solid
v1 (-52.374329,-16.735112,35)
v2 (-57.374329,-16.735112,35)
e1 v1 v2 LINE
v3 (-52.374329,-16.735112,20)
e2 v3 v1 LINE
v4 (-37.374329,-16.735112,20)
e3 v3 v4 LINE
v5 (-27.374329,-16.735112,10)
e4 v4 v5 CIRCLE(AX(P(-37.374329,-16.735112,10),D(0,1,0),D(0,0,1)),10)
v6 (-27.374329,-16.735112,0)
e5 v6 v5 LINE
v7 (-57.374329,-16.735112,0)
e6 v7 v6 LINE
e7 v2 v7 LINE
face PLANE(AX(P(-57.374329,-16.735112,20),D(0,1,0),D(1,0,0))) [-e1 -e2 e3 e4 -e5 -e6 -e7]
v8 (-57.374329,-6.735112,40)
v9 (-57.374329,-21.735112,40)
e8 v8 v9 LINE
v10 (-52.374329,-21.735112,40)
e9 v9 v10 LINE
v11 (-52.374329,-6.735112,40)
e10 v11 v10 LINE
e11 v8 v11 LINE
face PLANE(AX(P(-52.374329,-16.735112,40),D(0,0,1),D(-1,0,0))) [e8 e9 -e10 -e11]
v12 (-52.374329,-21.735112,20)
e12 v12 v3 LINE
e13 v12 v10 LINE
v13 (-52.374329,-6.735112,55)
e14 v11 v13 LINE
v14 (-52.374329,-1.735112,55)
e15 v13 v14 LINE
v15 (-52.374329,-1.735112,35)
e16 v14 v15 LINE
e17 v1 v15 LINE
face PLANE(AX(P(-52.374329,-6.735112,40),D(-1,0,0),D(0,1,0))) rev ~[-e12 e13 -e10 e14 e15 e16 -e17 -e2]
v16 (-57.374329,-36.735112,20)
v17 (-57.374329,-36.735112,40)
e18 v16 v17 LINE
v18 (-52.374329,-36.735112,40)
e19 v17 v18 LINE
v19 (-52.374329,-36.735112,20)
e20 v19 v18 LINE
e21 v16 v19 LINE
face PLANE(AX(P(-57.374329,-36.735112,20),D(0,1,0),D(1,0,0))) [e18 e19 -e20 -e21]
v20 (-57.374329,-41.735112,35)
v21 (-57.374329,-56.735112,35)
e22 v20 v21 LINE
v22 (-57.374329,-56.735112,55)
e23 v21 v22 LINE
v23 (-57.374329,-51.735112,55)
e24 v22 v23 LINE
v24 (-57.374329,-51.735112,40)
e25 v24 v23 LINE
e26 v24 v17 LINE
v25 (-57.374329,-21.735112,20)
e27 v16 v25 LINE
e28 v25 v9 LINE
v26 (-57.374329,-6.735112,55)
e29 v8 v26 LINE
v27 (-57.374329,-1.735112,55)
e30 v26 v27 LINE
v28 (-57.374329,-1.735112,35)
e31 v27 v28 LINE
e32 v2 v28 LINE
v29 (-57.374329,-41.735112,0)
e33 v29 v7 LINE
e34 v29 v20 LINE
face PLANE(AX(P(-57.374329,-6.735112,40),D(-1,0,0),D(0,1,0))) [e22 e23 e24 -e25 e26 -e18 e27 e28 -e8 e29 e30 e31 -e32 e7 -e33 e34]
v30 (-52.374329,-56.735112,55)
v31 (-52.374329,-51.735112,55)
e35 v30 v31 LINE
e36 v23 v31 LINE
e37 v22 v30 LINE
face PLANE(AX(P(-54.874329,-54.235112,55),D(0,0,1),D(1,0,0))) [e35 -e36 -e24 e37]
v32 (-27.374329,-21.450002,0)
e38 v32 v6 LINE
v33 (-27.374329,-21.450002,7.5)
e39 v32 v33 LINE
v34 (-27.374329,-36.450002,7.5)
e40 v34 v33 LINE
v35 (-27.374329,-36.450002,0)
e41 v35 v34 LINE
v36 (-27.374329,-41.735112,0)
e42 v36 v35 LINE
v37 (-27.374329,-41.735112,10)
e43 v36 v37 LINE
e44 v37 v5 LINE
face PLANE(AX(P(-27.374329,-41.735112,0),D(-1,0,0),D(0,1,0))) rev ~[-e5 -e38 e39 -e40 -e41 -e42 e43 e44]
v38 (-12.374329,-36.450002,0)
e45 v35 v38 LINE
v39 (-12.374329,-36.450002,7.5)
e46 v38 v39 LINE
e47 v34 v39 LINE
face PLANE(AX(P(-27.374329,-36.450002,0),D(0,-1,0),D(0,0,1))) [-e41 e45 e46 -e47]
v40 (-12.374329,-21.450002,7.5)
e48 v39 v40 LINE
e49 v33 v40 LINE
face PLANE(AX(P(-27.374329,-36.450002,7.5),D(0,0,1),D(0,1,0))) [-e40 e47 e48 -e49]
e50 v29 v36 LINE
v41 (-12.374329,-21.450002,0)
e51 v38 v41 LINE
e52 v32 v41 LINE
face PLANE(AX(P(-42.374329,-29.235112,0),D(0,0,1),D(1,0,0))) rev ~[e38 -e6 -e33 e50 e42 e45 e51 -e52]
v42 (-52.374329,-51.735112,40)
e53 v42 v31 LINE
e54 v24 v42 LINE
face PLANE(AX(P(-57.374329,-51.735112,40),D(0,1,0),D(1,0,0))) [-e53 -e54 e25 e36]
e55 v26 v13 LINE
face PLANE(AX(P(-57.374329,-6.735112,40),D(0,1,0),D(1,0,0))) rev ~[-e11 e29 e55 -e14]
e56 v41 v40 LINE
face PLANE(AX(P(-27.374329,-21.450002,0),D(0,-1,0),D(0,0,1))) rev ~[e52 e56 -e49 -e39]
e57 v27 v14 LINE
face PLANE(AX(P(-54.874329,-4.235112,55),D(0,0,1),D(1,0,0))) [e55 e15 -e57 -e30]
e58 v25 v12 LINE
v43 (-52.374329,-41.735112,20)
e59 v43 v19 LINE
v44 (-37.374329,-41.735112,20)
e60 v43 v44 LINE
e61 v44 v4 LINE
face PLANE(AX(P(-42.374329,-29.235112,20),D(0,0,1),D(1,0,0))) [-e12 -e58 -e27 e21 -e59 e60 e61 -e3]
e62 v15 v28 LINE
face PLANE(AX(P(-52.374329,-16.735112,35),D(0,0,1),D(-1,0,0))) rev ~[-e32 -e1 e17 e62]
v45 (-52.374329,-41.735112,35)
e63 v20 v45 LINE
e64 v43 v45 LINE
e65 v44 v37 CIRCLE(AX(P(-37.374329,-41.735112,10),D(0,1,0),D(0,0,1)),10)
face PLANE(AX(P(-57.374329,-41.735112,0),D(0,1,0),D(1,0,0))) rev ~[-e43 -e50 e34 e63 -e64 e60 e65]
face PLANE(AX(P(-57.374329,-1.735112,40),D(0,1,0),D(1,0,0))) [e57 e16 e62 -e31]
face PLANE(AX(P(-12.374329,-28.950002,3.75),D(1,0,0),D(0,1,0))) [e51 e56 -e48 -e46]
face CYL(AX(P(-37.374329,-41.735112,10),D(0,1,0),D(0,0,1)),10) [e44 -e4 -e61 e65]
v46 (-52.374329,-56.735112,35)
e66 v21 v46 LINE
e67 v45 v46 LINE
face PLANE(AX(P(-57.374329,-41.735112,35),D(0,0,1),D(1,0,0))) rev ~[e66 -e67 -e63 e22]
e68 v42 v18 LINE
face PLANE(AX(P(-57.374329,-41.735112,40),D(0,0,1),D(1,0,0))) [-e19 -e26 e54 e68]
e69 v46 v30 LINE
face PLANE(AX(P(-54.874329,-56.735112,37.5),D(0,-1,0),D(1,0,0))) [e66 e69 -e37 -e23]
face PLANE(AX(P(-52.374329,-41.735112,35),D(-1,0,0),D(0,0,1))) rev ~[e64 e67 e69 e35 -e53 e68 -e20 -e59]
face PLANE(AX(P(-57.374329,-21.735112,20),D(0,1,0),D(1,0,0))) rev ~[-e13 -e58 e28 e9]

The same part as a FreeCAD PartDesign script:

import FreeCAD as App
import Part
import Sketcher

V = App.Vector
Q = App.Units.Quantity


def edges_at(feature, points):
    """Names of the edges that pass closest to the given points."""
    edges = feature.Shape.Edges
    near = lambda p: min(range(len(edges)), key=lambda i: edges[i].distToShape(Part.Vertex(*p))[0])
    return sorted({f"Edge{near(p) + 1}" for p in points})


def add_polygon(sketch, points):
    """Adds a closed chain of lines whose ends are joined by coincident constraints."""
    first, n = sketch.GeometryCount, len(points)
    for a, b in zip(points, points[1:] + points[:1]):
        sketch.addGeometry(Part.LineSegment(App.Vector(*a, 0), App.Vector(*b, 0)), False)
    for i in range(n):
        sketch.addConstraint(Sketcher.Constraint("Coincident", first + i, 2, first + (i + 1) % n, 1))

doc = App.newDocument("Part")
body = doc.addObject("PartDesign::Body", "Body")

# Sketch on XY plane
sketch1 = body.newObject("Sketcher::SketchObject", "Sketch")
sketch1.AttachmentSupport = (doc.getObject("XY_Plane"), [""])
sketch1.MapMode = "FlatFace"
add_polygon(sketch1, [(-57, -17), (-57, -42), (-27, -42), (-27, -17)])  # lines 0-3
sketch1.addConstraint([
    Sketcher.Constraint("Vertical", 0),
    Sketcher.Constraint("Horizontal", 1),
    Sketcher.Constraint("Vertical", 2),
    Sketcher.Constraint("Horizontal", 3),
    Sketcher.Constraint("DistanceX", 1, 1, 1, 2, Q("30 mm")),
    Sketcher.Constraint("DistanceY", 0, 2, 0, 1, Q("25 mm")),
    Sketcher.Constraint("DistanceX", 0, 2, -1, 1, Q("57.374329 mm")),
    Sketcher.Constraint("DistanceY", 0, 2, -1, 1, Q("41.735112 mm")),
])
pad1 = body.newObject("PartDesign::Pad", "Pad")
pad1.Profile = sketch1
pad1.Length = 20

# Sketch on YZ plane
sketch2 = body.newObject("Sketcher::SketchObject", "Sketch001")
sketch2.AttachmentSupport = (doc.getObject("YZ_Plane"), [""])
sketch2.MapMode = "FlatFace"
sketch2.AttachmentOffset = App.Placement(V(0, 0, -27.374329), App.Rotation())
add_polygon(sketch2, [(-36, 8), (-36, 0), (-21, 0), (-21, 8)])  # lines 0-3
sketch2.addConstraint([
    Sketcher.Constraint("Vertical", 0),
    Sketcher.Constraint("Horizontal", 1),
    Sketcher.Constraint("Vertical", 2),
    Sketcher.Constraint("Horizontal", 3),
    Sketcher.Constraint("PointOnObject", 0, 2, -1),
    Sketcher.Constraint("DistanceX", 1, 1, 1, 2, Q("15 mm")),
    Sketcher.Constraint("DistanceY", 0, 2, 0, 1, Q("7.5 mm")),
    Sketcher.Constraint("DistanceX", 0, 2, -1, 1, Q("36.450002 mm")),
])
pad2 = body.newObject("PartDesign::Pad", "Pad001")
pad2.Profile = sketch2
pad2.Length = 15

# Sketch on XY plane
sketch3 = body.newObject("Sketcher::SketchObject", "Sketch002")
sketch3.AttachmentSupport = (doc.getObject("XY_Plane"), [""])
sketch3.MapMode = "FlatFace"
sketch3.AttachmentOffset = App.Placement(V(0, 0, 20), App.Rotation())
add_polygon(sketch3, [(-57, -17), (-57, -22), (-52, -22), (-52, -17)])  # lines 0-3
add_polygon(sketch3, [(-57, -37), (-57, -42), (-52, -42), (-52, -37)])  # lines 4-7
sketch3.addConstraint([
    Sketcher.Constraint("Vertical", 0),
    Sketcher.Constraint("Horizontal", 1),
    Sketcher.Constraint("Vertical", 2),
    Sketcher.Constraint("Horizontal", 3),
    Sketcher.Constraint("Vertical", 4),
    Sketcher.Constraint("Horizontal", 5),
    Sketcher.Constraint("Vertical", 6),
    Sketcher.Constraint("Horizontal", 7),
    Sketcher.Constraint("Vertical", 3, 2, 4, 2),
    Sketcher.Constraint("Vertical", 2, 2, 5, 2),
    Sketcher.Constraint("Equal", 7, 0),
    Sketcher.Constraint("Equal", 2, 4),
    Sketcher.Constraint("DistanceX", 1, 1, 1, 2, Q("5 mm")),
    Sketcher.Constraint("DistanceY", 4, 2, 0, 2, Q("20 mm")),
    Sketcher.Constraint("DistanceX", 0, 2, -1, 1, Q("57.374329 mm")),
    Sketcher.Constraint("DistanceY", 0, 2, -1, 1, Q("21.735112 mm")),
])
pad3 = body.newObject("PartDesign::Pad", "Pad002")
pad3.Profile = sketch3
pad3.Length = 20

# Sketch on XZ plane
sketch4 = body.newObject("Sketcher::SketchObject", "Sketch003")
sketch4.AttachmentSupport = (doc.getObject("XZ_Plane"), [""])
sketch4.MapMode = "FlatFace"
sketch4.AttachmentOffset = App.Placement(V(0, 0, 16.735112), App.Rotation())
add_polygon(sketch4, [(-52, 40), (-52, 35), (-57, 35), (-57, 40)])  # lines 0-3
sketch4.addConstraint([
    Sketcher.Constraint("Vertical", 0),
    Sketcher.Constraint("Horizontal", 1),
    Sketcher.Constraint("Vertical", 2),
    Sketcher.Constraint("Horizontal", 3),
    Sketcher.Constraint("Equal", 3, 0),
    Sketcher.Constraint("DistanceX", 1, 2, 1, 1, Q("5 mm")),
    Sketcher.Constraint("DistanceY", -1, 1, 0, 2, Q("35 mm")),
    Sketcher.Constraint("DistanceX", 0, 2, -1, 1, Q("52.374329 mm")),
])
pad4 = body.newObject("PartDesign::Pad", "Pad003")
pad4.Profile = sketch4
pad4.Length = 15
pad4.Reversed = True

# Sketch on XZ plane
sketch5 = body.newObject("Sketcher::SketchObject", "Sketch004")
sketch5.AttachmentSupport = (doc.getObject("XZ_Plane"), [""])
sketch5.MapMode = "FlatFace"
sketch5.AttachmentOffset = App.Placement(V(0, 0, 41.735112), App.Rotation())
add_polygon(sketch5, [(-57, 40), (-57, 35), (-52, 35), (-52, 40)])  # lines 0-3
sketch5.addConstraint([
    Sketcher.Constraint("Vertical", 0),
    Sketcher.Constraint("Horizontal", 1),
    Sketcher.Constraint("Vertical", 2),
    Sketcher.Constraint("Horizontal", 3),
    Sketcher.Constraint("Equal", 3, 0),
    Sketcher.Constraint("DistanceX", 1, 1, 1, 2, Q("5 mm")),
    Sketcher.Constraint("DistanceY", -1, 1, 0, 2, Q("35 mm")),
    Sketcher.Constraint("DistanceX", 0, 2, -1, 1, Q("57.374329 mm")),
])
pad5 = body.newObject("PartDesign::Pad", "Pad004")
pad5.Profile = sketch5
pad5.Length = 15

# Sketch on XY plane
sketch6 = body.newObject("Sketcher::SketchObject", "Sketch005")
sketch6.AttachmentSupport = (doc.getObject("XY_Plane"), [""])
sketch6.MapMode = "FlatFace"
sketch6.AttachmentOffset = App.Placement(V(0, 0, 40), App.Rotation())
add_polygon(sketch6, [(-57, -2), (-57, -7), (-52, -7), (-52, -2)])  # lines 0-3
add_polygon(sketch6, [(-57, -52), (-57, -57), (-52, -57), (-52, -52)])  # lines 4-7
sketch6.addConstraint([
    Sketcher.Constraint("Vertical", 0),
    Sketcher.Constraint("Horizontal", 1),
    Sketcher.Constraint("Vertical", 2),
    Sketcher.Constraint("Horizontal", 3),
    Sketcher.Constraint("Vertical", 4),
    Sketcher.Constraint("Horizontal", 5),
    Sketcher.Constraint("Vertical", 6),
    Sketcher.Constraint("Horizontal", 7),
    Sketcher.Constraint("Vertical", 3, 2, 4, 2),
    Sketcher.Constraint("Vertical", 2, 2, 5, 2),
    Sketcher.Constraint("Equal", 7, 0),
    Sketcher.Constraint("Equal", 2, 4),
    Sketcher.Constraint("DistanceX", 1, 1, 1, 2, Q("5 mm")),
    Sketcher.Constraint("DistanceY", 4, 2, 0, 2, Q("50 mm")),
    Sketcher.Constraint("DistanceX", 0, 2, -1, 1, Q("57.374329 mm")),
    Sketcher.Constraint("DistanceY", 0, 2, -1, 1, Q("6.735112 mm")),
])
pad6 = body.newObject("PartDesign::Pad", "Pad005")
pad6.Profile = sketch6
pad6.Length = 15
doc.recompute()

fillet = body.newObject("PartDesign::Fillet", "Fillet")
fillet.Base = (pad6, edges_at(pad6, [(-27.374, -29.235, 20)]))
fillet.Radius = 10

doc.recompute()
